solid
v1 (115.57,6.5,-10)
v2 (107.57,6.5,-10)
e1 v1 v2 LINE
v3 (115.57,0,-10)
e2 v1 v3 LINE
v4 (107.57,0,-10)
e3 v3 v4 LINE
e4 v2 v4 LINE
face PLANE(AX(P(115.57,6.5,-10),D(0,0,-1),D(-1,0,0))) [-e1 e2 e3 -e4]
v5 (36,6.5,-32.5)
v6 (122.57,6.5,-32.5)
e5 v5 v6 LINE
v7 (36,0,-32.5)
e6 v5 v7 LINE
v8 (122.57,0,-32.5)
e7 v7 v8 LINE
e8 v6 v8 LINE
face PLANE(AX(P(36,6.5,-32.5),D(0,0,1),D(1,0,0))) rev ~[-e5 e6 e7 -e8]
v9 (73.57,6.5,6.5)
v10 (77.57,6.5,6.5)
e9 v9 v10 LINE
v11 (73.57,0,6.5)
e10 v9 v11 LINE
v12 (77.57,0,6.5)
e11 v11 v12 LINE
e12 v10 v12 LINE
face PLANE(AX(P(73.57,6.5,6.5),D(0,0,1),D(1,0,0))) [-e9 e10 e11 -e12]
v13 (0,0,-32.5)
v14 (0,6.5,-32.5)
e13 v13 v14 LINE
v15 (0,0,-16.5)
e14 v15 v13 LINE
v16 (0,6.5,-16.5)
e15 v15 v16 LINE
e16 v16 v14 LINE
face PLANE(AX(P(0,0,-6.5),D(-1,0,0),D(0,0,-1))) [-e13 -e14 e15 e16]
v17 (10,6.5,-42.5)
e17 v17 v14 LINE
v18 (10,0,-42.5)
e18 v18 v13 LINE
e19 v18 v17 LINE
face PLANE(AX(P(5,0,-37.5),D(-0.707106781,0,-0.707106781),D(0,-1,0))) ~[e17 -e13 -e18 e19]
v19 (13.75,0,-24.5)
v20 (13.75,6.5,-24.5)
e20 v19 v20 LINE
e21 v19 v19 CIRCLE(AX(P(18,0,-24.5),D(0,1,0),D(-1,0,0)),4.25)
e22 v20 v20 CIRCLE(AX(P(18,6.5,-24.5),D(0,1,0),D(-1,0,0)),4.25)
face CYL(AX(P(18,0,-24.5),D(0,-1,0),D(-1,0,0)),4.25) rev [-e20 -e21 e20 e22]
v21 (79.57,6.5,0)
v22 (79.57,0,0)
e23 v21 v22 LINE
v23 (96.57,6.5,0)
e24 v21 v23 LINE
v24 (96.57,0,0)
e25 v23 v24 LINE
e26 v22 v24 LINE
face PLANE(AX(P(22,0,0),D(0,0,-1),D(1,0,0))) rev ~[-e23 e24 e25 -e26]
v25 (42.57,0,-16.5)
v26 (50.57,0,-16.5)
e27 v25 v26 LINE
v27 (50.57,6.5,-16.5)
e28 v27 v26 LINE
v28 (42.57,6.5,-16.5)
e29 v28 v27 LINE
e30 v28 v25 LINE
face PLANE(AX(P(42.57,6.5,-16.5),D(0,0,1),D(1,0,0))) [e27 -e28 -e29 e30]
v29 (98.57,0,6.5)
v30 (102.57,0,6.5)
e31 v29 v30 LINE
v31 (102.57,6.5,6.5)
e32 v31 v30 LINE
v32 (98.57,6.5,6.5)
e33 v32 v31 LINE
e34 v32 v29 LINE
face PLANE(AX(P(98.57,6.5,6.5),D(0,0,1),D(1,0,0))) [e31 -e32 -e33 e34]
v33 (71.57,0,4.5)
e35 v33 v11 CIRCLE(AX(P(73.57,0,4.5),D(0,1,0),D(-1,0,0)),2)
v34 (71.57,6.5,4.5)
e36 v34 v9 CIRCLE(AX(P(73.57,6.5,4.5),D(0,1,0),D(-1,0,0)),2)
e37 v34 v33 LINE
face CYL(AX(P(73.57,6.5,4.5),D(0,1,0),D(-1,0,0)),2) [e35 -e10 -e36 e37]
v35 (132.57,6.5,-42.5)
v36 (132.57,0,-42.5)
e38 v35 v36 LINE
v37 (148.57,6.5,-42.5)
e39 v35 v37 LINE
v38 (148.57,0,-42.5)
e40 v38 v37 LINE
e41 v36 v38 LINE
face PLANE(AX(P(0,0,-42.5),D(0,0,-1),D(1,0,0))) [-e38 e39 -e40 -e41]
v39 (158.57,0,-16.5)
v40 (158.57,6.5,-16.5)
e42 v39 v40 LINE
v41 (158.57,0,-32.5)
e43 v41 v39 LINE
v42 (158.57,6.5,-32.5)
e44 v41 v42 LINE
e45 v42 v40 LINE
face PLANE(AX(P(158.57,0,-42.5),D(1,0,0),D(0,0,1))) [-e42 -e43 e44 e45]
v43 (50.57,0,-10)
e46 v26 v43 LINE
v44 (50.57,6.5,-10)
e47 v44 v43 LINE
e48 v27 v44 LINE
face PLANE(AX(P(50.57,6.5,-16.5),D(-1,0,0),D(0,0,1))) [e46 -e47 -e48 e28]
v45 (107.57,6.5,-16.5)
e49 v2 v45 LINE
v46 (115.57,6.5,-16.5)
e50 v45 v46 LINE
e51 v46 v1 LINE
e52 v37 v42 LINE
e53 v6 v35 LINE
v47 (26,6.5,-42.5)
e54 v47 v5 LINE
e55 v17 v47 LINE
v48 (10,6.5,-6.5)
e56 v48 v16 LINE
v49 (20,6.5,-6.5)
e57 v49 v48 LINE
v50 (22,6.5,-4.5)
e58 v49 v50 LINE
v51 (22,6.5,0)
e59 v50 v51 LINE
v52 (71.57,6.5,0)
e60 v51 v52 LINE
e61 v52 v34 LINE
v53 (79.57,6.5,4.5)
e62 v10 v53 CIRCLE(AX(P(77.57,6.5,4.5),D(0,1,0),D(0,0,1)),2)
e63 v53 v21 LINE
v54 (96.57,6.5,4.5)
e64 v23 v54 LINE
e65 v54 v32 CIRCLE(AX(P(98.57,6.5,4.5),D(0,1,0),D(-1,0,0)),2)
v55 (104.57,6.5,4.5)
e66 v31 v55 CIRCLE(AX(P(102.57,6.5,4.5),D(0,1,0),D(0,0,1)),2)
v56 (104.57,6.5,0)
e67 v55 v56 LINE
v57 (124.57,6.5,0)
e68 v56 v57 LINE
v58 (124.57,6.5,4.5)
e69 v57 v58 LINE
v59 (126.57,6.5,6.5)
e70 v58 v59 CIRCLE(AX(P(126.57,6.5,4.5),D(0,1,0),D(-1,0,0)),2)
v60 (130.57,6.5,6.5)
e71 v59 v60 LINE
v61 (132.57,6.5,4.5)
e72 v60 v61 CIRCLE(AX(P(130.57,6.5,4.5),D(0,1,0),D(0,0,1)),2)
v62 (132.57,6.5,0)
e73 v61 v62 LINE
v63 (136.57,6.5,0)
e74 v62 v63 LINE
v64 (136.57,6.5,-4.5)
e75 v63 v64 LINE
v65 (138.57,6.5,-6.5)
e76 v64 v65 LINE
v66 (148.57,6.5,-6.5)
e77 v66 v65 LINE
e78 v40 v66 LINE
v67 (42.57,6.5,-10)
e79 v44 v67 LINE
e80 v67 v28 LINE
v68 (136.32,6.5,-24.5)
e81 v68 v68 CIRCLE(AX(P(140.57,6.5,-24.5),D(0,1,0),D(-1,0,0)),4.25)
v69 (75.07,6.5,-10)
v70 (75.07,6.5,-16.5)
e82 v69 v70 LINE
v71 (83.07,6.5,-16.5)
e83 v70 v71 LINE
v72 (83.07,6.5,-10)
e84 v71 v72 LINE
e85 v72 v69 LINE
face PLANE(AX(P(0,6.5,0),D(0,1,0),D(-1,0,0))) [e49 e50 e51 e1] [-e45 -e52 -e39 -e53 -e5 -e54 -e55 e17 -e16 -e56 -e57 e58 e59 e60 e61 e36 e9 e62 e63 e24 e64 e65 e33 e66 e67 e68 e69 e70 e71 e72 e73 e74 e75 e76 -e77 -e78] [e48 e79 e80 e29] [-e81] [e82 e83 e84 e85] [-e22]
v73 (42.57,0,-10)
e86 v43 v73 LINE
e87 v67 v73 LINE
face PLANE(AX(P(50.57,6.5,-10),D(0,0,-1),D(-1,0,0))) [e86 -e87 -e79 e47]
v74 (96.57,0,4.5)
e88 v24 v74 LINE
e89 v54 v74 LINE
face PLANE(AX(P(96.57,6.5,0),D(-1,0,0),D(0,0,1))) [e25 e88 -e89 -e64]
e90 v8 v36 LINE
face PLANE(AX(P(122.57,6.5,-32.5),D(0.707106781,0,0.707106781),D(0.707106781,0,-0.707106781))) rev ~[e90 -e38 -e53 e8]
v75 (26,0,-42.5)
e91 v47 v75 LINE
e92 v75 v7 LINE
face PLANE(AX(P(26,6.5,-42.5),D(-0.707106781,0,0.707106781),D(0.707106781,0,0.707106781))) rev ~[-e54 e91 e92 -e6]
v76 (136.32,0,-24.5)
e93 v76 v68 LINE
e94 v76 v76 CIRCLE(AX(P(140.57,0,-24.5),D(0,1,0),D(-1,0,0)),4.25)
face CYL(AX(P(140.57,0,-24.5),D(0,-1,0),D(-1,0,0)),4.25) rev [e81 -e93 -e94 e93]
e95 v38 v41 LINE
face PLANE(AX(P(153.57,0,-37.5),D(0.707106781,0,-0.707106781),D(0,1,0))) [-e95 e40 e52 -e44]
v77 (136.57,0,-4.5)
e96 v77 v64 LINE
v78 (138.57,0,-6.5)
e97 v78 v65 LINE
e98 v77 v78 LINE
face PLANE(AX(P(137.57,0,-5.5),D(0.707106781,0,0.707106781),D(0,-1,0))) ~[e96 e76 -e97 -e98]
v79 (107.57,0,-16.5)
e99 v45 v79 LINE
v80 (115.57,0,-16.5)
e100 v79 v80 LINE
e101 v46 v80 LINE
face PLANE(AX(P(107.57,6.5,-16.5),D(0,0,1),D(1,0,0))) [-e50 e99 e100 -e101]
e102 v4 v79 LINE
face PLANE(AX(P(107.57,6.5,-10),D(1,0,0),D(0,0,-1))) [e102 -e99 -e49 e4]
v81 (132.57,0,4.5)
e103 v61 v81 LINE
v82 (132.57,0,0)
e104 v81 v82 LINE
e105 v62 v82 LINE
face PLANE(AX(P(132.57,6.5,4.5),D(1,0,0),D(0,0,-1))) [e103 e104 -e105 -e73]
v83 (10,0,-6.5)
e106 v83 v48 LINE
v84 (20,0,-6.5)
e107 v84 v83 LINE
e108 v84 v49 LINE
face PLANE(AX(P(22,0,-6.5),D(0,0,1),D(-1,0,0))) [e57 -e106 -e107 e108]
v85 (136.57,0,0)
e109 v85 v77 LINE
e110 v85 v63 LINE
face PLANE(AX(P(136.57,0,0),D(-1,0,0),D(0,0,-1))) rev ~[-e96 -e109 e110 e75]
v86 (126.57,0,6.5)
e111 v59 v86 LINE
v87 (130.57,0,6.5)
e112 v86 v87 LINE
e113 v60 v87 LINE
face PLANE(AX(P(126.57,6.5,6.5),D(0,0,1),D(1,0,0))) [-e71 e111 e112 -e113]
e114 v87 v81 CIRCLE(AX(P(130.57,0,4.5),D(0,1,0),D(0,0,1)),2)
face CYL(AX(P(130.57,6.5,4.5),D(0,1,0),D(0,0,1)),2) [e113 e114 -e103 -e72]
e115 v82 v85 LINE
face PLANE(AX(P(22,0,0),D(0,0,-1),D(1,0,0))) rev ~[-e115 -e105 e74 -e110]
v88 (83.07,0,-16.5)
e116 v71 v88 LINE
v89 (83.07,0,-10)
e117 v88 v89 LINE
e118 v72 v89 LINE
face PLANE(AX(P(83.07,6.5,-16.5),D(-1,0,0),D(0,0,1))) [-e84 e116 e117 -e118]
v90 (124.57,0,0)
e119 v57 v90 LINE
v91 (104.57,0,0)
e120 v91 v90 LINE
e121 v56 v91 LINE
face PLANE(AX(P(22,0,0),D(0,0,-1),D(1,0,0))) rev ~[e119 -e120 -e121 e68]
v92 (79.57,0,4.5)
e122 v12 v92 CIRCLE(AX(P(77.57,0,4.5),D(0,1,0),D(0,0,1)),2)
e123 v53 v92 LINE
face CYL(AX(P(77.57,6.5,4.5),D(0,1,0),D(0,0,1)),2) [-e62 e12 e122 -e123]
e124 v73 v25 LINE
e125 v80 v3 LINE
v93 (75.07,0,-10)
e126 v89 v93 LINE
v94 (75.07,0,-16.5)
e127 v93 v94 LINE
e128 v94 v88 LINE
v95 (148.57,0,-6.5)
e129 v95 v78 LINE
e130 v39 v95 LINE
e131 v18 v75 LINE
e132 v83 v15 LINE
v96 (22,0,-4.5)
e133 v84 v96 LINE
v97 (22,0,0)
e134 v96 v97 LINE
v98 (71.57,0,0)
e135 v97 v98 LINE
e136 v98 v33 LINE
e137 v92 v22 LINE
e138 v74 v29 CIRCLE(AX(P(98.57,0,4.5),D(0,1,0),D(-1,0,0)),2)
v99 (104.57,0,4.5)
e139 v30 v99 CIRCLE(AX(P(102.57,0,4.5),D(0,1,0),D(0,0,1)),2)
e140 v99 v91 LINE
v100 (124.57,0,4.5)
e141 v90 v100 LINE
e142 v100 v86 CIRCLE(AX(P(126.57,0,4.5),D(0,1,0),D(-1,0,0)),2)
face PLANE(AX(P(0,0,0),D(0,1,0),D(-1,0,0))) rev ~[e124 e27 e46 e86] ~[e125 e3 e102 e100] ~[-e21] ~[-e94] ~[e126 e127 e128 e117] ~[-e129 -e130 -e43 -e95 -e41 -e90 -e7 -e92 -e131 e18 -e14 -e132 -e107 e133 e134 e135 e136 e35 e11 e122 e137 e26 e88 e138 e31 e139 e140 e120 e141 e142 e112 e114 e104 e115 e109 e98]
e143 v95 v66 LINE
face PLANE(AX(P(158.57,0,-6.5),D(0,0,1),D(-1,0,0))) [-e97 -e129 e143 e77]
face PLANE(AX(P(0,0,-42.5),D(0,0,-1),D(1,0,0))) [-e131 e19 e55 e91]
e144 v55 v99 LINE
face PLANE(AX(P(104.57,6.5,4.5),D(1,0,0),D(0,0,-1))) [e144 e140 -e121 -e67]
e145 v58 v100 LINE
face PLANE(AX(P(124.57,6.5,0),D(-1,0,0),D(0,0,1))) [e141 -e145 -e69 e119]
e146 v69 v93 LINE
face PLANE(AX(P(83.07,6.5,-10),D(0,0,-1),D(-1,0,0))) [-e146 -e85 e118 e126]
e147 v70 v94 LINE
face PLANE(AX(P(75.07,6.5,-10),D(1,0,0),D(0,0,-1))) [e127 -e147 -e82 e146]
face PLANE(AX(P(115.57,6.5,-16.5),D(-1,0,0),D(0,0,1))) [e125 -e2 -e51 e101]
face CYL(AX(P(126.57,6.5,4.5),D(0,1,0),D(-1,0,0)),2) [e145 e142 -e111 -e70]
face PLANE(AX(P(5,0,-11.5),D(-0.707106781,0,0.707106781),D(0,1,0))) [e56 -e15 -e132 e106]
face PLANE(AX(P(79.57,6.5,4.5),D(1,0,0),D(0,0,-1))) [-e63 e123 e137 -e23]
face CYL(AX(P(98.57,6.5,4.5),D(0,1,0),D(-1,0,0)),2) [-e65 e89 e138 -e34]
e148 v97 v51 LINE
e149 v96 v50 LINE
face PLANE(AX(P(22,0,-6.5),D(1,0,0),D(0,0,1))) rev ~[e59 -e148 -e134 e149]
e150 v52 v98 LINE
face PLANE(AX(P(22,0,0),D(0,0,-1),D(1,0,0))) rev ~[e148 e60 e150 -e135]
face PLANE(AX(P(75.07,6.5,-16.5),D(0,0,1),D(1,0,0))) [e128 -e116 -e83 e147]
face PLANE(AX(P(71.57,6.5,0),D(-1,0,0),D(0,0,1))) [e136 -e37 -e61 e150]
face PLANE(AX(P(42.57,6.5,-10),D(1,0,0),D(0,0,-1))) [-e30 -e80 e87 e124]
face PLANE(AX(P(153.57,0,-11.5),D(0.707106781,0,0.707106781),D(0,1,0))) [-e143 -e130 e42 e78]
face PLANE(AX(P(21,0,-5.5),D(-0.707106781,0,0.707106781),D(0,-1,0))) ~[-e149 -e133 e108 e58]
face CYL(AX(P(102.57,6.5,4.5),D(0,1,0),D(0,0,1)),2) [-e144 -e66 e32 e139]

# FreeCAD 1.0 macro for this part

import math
import FreeCAD as App
import Part
import Sketcher

V = App.Vector
Q = App.Units.Quantity


def edges_at(feature, points):
    """Names of the edges that pass closest to the given points."""
    edges = feature.Shape.Edges
    near = lambda p: min(range(len(edges)), key=lambda i: edges[i].distToShape(Part.Vertex(*p))[0])
    return sorted({f"Edge{near(p) + 1}" for p in points})


def add_polygon(sketch, points):
    """Adds a closed chain of lines whose ends are joined by coincident constraints."""
    first, n = sketch.GeometryCount, len(points)
    for a, b in zip(points, points[1:] + points[:1]):
        sketch.addGeometry(Part.LineSegment(App.Vector(*a, 0), App.Vector(*b, 0)), False)
    for i in range(n):
        sketch.addConstraint(Sketcher.Constraint("Coincident", first + i, 2, first + (i + 1) % n, 1))

doc = App.newDocument("Part")
params = doc.addObject("Spreadsheet::Sheet", "Params")
for row, (alias, value) in enumerate([
    ("sketch1_diameter", "8.5 mm"),
    ("sketch1_width", "22 mm"),
    ("sketch1_height", "36 mm"),
    ("sketch1_height2", "6.5 mm"),
    ("sketch1_width2", "158.57 mm"),
    ("pad1_length", "6.5 mm"),
    ("chamfer_size", "10 mm"),
    ("sketch2_width", "106.57 mm"),
    ("sketch3_width", "8 mm"),
    ("sketch3_height", "6.5 mm"),
    ("chamfer2_size", "2 mm"),
    ("sketch4_radius", "2 mm"),
    ("sketch4_width", "8 mm"),
    ("pad2_length", "6.5 mm"),
], start=1):
    params.set(f"A{row}", alias)
    params.set(f"B{row}", "=" + value)
    params.setAlias(f"B{row}", alias)

body = doc.addObject("PartDesign::Body", "Body")

# Sketch on XZ plane
sketch1 = body.newObject("Sketcher::SketchObject", "Sketch")
sketch1.AttachmentSupport = (doc.getObject("XZ_Plane"), [""])
sketch1.MapMode = "FlatFace"
add_polygon(sketch1, [(158.6, -42.5), (0, -42.5), (0, -6.5), (22, -6.5), (22, 0), (136.6, 0), (136.6, -6.5), (158.6, -6.5)])  # lines 0-7
sketch1.addGeometry(Part.Circle(V(140.6, -24.5, 0), V(0, 0, 1), 4.2), False)  # 8
sketch1.addGeometry(Part.Circle(V(18, -24.5, 0), V(0, 0, 1), 4.2), False)  # 9
sketch1.addConstraint(Sketcher.Constraint("Horizontal", 0))
sketch1.addConstraint(Sketcher.Constraint("Vertical", 1))
sketch1.addConstraint(Sketcher.Constraint("Horizontal", 2))
sketch1.addConstraint(Sketcher.Constraint("Vertical", 3))
sketch1.addConstraint(Sketcher.Constraint("Horizontal", 4))
sketch1.addConstraint(Sketcher.Constraint("Vertical", 5))
sketch1.addConstraint(Sketcher.Constraint("Horizontal", 6))
sketch1.addConstraint(Sketcher.Constraint("Vertical", 7))
sketch1.addConstraint(Sketcher.Constraint("Equal", 8, 9))
sketch1.addConstraint(Sketcher.Constraint("PointOnObject", 0, 2, -2))
sketch1.addConstraint(Sketcher.Constraint("PointOnObject", 3, 2, -1))
sketch1.addConstraint(Sketcher.Constraint("Horizontal", 8, 3, 9, 3))
sketch1.addConstraint(Sketcher.Constraint("Horizontal", 2, 2, 5, 2))
sketch1.addConstraint(Sketcher.Constraint("Equal", 2, 6))
sketch1.addConstraint(Sketcher.Constraint("Diameter", 8, Q("8.5 mm")))
sketch1.addConstraint(Sketcher.Constraint("DistanceX", 2, 1, 2, 2, Q("22 mm")))
sketch1.addConstraint(Sketcher.Constraint("DistanceY", 1, 1, 1, 2, Q("36 mm")))
sketch1.addConstraint(Sketcher.Constraint("DistanceY", 3, 1, 3, 2, Q("6.5 mm")))
sketch1.addConstraint(Sketcher.Constraint("DistanceX", -1, 1, 9, 3, Q("18 mm")))
sketch1.addConstraint(Sketcher.Constraint("DistanceY", 0, 2, 9, 3, Q("18 mm")))
sketch1.addConstraint(Sketcher.Constraint("DistanceX", 8, 3, 6, 2, Q("18 mm")))
sketch1.addConstraint(Sketcher.Constraint("DistanceX", 0, 2, 0, 1, Q("158.57 mm")))
sketch1.setExpression("Constraints[22]", "Params.sketch1_diameter")
sketch1.setExpression("Constraints[23]", "Params.sketch1_width")
sketch1.setExpression("Constraints[24]", "Params.sketch1_height")
sketch1.setExpression("Constraints[25]", "Params.sketch1_height2")
sketch1.setExpression("Constraints[29]", "Params.sketch1_width2")
pad1 = body.newObject("PartDesign::Pad", "Pad")
pad1.Profile = sketch1
pad1.setExpression("Length", "Params.pad1_length")
pad1.Reversed = True
doc.recompute()

chamfer = body.newObject("PartDesign::Chamfer", "Chamfer")
chamfer.Base = (pad1, edges_at(pad1, [
    (0, 3.25, -42.5),
    (0, 3.25, -6.5),
    (158.57, 3.25, -6.5),
    (158.57, 3.25, -42.5),
]))
chamfer.setExpression("Size", "Params.chamfer_size")

# Sketch on XZ plane
sketch2 = body.newObject("Sketcher::SketchObject", "Sketch001")
sketch2.AttachmentSupport = (doc.getObject("XZ_Plane"), [""])
sketch2.MapMode = "FlatFace"
sketch2.AttachmentOffset = App.Placement(V(0, 0, -6.5), App.Rotation())
add_polygon(sketch2, [(123, -32), (133, -42), (26, -42), (36, -32)])  # lines 0-3
sketch2.addConstraint(Sketcher.Constraint("Horizontal", 1))
sketch2.addConstraint(Sketcher.Constraint("Horizontal", 3))
sketch2.addConstraint(Sketcher.Constraint("Perpendicular", 0, 2))
sketch2.addConstraint(Sketcher.Constraint("Equal", 0, 2))
sketch2.addConstraint(Sketcher.Constraint("DistanceX", 1, 2, 2, 2, Q("10 mm")))
sketch2.addConstraint(Sketcher.Constraint("DistanceX", -1, 1, 1, 2, Q("26 mm")))
sketch2.addConstraint(Sketcher.Constraint("DistanceX", 1, 2, 1, 1, Q("106.57 mm")))
sketch2.addConstraint(Sketcher.Constraint("DistanceY", 0, 2, -1, 1, Q("42.5 mm")))
sketch2.setExpression("Constraints[10]", "Params.sketch2_width")
pocket1 = body.newObject("PartDesign::Pocket", "Pocket")
pocket1.Profile = sketch2
pocket1.Type = "ThroughAll"
pocket1.Reversed = True

# Sketch on XZ plane
sketch3 = body.newObject("Sketcher::SketchObject", "Sketch002")
sketch3.AttachmentSupport = (doc.getObject("XZ_Plane"), [""])
sketch3.MapMode = "FlatFace"
sketch3.AttachmentOffset = App.Placement(V(0, 0, -6.5), App.Rotation())
add_polygon(sketch3, [(51, -16), (43, -16), (43, -10), (51, -10)])  # lines 0-3
add_polygon(sketch3, [(83, -16), (75, -16), (75, -10), (83, -10)])  # lines 4-7
add_polygon(sketch3, [(116, -16), (108, -16), (108, -10), (116, -10)])  # lines 8-11
sketch3.addConstraint(Sketcher.Constraint("Horizontal", 0))
sketch3.addConstraint(Sketcher.Constraint("Vertical", 1))
sketch3.addConstraint(Sketcher.Constraint("Horizontal", 2))
sketch3.addConstraint(Sketcher.Constraint("Vertical", 3))
sketch3.addConstraint(Sketcher.Constraint("Horizontal", 4))
sketch3.addConstraint(Sketcher.Constraint("Vertical", 5))
sketch3.addConstraint(Sketcher.Constraint("Horizontal", 6))
sketch3.addConstraint(Sketcher.Constraint("Vertical", 7))
sketch3.addConstraint(Sketcher.Constraint("Horizontal", 8))
sketch3.addConstraint(Sketcher.Constraint("Vertical", 9))
sketch3.addConstraint(Sketcher.Constraint("Horizontal", 10))
sketch3.addConstraint(Sketcher.Constraint("Vertical", 11))
sketch3.addConstraint(Sketcher.Constraint("Horizontal", 3, 2, 4, 2))
sketch3.addConstraint(Sketcher.Constraint("Horizontal", 2, 2, 5, 2))
sketch3.addConstraint(Sketcher.Constraint("Horizontal", 7, 2, 8, 2))
sketch3.addConstraint(Sketcher.Constraint("Horizontal", 6, 2, 9, 2))
sketch3.addConstraint(Sketcher.Constraint("Equal", 2, 4))
sketch3.addConstraint(Sketcher.Constraint("Equal", 6, 8))
sketch3.addConstraint(Sketcher.Constraint("DistanceX", 0, 2, 0, 1, Q("8 mm")))
sketch3.addConstraint(Sketcher.Constraint("DistanceY", 1, 1, 1, 2, Q("6.5 mm")))
sketch3.addConstraint(Sketcher.Constraint("DistanceY", 1, 2, -1, 1, Q("10 mm")))
sketch3.addConstraint(Sketcher.Constraint("DistanceX", 3, 2, 8, 2, Q("57 mm")))
sketch3.addConstraint(Sketcher.Constraint("DistanceX", 3, 2, 4, 2, Q("24.5 mm")))
sketch3.addConstraint(Sketcher.Constraint("DistanceX", -1, 1, 0, 2, Q("42.57 mm")))
sketch3.setExpression("Constraints[30]", "Params.sketch3_width")
sketch3.setExpression("Constraints[31]", "Params.sketch3_height")
pocket2 = body.newObject("PartDesign::Pocket", "Pocket001")
pocket2.Profile = sketch3
pocket2.Type = "ThroughAll"
pocket2.Reversed = True
doc.recompute()

chamfer2 = body.newObject("PartDesign::Chamfer", "Chamfer001")
chamfer2.Base = (pocket2, edges_at(pocket2, [(22, 3.25, -6.5), (136.57, 3.25, -6.5)]))
chamfer2.setExpression("Size", "Params.chamfer2_size")

# Sketch on XZ plane
sketch4 = body.newObject("Sketcher::SketchObject", "Sketch003")
sketch4.AttachmentSupport = (doc.getObject("XZ_Plane"), [""])
sketch4.MapMode = "FlatFace"
sketch4.AttachmentOffset = App.Placement(V(0, 0, -6.5), App.Rotation())
sketch4.addGeometry(Part.LineSegment(V(132.6, 0, 0), V(124.6, 0, 0)), False)
sketch4.addGeometry(Part.LineSegment(V(124.6, 0, 0), V(124.6, 4.5, 0)), False)
sketch4.addGeometry(Part.ArcOfCircle(Part.Circle(V(126.6, 4.5, 0), V(0, 0, 1), 2), math.radians(90), math.radians(180)), False)
sketch4.addGeometry(Part.LineSegment(V(126.6, 6.5, 0), V(130.6, 6.5, 0)), False)
sketch4.addGeometry(Part.ArcOfCircle(Part.Circle(V(130.6, 4.5, 0), V(0, 0, 1), 2), math.radians(0), math.radians(90)), False)
sketch4.addGeometry(Part.LineSegment(V(132.6, 4.5, 0), V(132.6, 0, 0)), False)
sketch4.addGeometry(Part.LineSegment(V(104.6, 0, 0), V(96.6, 0, 0)), False)
sketch4.addGeometry(Part.LineSegment(V(96.6, 0, 0), V(96.6, 4.5, 0)), False)
sketch4.addGeometry(Part.ArcOfCircle(Part.Circle(V(98.6, 4.5, 0), V(0, 0, 1), 2), math.radians(90), math.radians(180)), False)
sketch4.addGeometry(Part.LineSegment(V(98.6, 6.5, 0), V(102.6, 6.5, 0)), False)
sketch4.addGeometry(Part.ArcOfCircle(Part.Circle(V(102.6, 4.5, 0), V(0, 0, 1), 2), math.radians(0), math.radians(90)), False)
sketch4.addGeometry(Part.LineSegment(V(104.6, 4.5, 0), V(104.6, 0, 0)), False)
sketch4.addGeometry(Part.LineSegment(V(79.6, 0, 0), V(71.6, 0, 0)), False)
sketch4.addGeometry(Part.LineSegment(V(71.6, 0, 0), V(71.6, 4.5, 0)), False)
sketch4.addGeometry(Part.ArcOfCircle(Part.Circle(V(73.6, 4.5, 0), V(0, 0, 1), 2), math.radians(90), math.radians(180)), False)
sketch4.addGeometry(Part.LineSegment(V(73.6, 6.5, 0), V(77.6, 6.5, 0)), False)
sketch4.addGeometry(Part.ArcOfCircle(Part.Circle(V(77.6, 4.5, 0), V(0, 0, 1), 2), math.radians(0), math.radians(90)), False)
sketch4.addGeometry(Part.LineSegment(V(79.6, 4.5, 0), V(79.6, 0, 0)), False)
sketch4.addConstraint(Sketcher.Constraint("Coincident", 0, 2, 1, 1))
sketch4.addConstraint(Sketcher.Constraint("Tangent", 1, 2, 2, 2))
sketch4.addConstraint(Sketcher.Constraint("Tangent", 2, 1, 3, 1))
sketch4.addConstraint(Sketcher.Constraint("Tangent", 3, 2, 4, 2))
sketch4.addConstraint(Sketcher.Constraint("Tangent", 4, 1, 5, 1))
sketch4.addConstraint(Sketcher.Constraint("Coincident", 5, 2, 0, 1))
sketch4.addConstraint(Sketcher.Constraint("Coincident", 6, 2, 7, 1))
sketch4.addConstraint(Sketcher.Constraint("Tangent", 7, 2, 8, 2))
sketch4.addConstraint(Sketcher.Constraint("Tangent", 8, 1, 9, 1))
sketch4.addConstraint(Sketcher.Constraint("Tangent", 9, 2, 10, 2))
sketch4.addConstraint(Sketcher.Constraint("Tangent", 10, 1, 11, 1))
sketch4.addConstraint(Sketcher.Constraint("Coincident", 11, 2, 6, 1))
sketch4.addConstraint(Sketcher.Constraint("Coincident", 12, 2, 13, 1))
sketch4.addConstraint(Sketcher.Constraint("Tangent", 13, 2, 14, 2))
sketch4.addConstraint(Sketcher.Constraint("Tangent", 14, 1, 15, 1))
sketch4.addConstraint(Sketcher.Constraint("Tangent", 15, 2, 16, 2))
sketch4.addConstraint(Sketcher.Constraint("Tangent", 16, 1, 17, 1))
sketch4.addConstraint(Sketcher.Constraint("Coincident", 17, 2, 12, 1))
sketch4.addConstraint(Sketcher.Constraint("Horizontal", 0))
sketch4.addConstraint(Sketcher.Constraint("Vertical", 1))
sketch4.addConstraint(Sketcher.Constraint("Horizontal", 3))
sketch4.addConstraint(Sketcher.Constraint("Vertical", 5))
sketch4.addConstraint(Sketcher.Constraint("Horizontal", 6))
sketch4.addConstraint(Sketcher.Constraint("Vertical", 7))
sketch4.addConstraint(Sketcher.Constraint("Horizontal", 9))
sketch4.addConstraint(Sketcher.Constraint("Vertical", 11))
sketch4.addConstraint(Sketcher.Constraint("Horizontal", 12))
sketch4.addConstraint(Sketcher.Constraint("Vertical", 13))
sketch4.addConstraint(Sketcher.Constraint("Horizontal", 15))
sketch4.addConstraint(Sketcher.Constraint("Vertical", 17))
sketch4.addConstraint(Sketcher.Constraint("Equal", 2, 4))
sketch4.addConstraint(Sketcher.Constraint("Equal", 4, 8))
sketch4.addConstraint(Sketcher.Constraint("Equal", 8, 10))
sketch4.addConstraint(Sketcher.Constraint("Equal", 10, 14))
sketch4.addConstraint(Sketcher.Constraint("Equal", 14, 16))
sketch4.addConstraint(Sketcher.Constraint("PointOnObject", 0, 2, -1))
sketch4.addConstraint(Sketcher.Constraint("PointOnObject", 6, 2, -1))
sketch4.addConstraint(Sketcher.Constraint("PointOnObject", 12, 2, -1))
sketch4.addConstraint(Sketcher.Constraint("Horizontal", 4, 3, 8, 3))
sketch4.addConstraint(Sketcher.Constraint("Horizontal", 10, 3, 14, 3))
sketch4.addConstraint(Sketcher.Constraint("Equal", 0, 6))
sketch4.addConstraint(Sketcher.Constraint("Equal", 6, 12))
sketch4.addConstraint(Sketcher.Constraint("Radius", 2, Q("2 mm")))
sketch4.addConstraint(Sketcher.Constraint("DistanceX", 0, 2, 0, 1, Q("8 mm")))
sketch4.addConstraint(Sketcher.Constraint("DistanceY", -1, 1, 2, 1, Q("6.5 mm")))
sketch4.addConstraint(Sketcher.Constraint("DistanceX", 8, 3, 2, 3, Q("28 mm")))
sketch4.addConstraint(Sketcher.Constraint("DistanceX", 14, 3, 8, 3, Q("25 mm")))
sketch4.addConstraint(Sketcher.Constraint("DistanceX", -1, 1, 2, 3, Q("126.57 mm")))
sketch4.setExpression("Constraints[42]", "Params.sketch4_radius")
sketch4.setExpression("Constraints[43]", "Params.sketch4_width")
pad2 = body.newObject("PartDesign::Pad", "Pad001")
pad2.Profile = sketch4
pad2.setExpression("Length", "Params.pad2_length")

doc.recompute()
